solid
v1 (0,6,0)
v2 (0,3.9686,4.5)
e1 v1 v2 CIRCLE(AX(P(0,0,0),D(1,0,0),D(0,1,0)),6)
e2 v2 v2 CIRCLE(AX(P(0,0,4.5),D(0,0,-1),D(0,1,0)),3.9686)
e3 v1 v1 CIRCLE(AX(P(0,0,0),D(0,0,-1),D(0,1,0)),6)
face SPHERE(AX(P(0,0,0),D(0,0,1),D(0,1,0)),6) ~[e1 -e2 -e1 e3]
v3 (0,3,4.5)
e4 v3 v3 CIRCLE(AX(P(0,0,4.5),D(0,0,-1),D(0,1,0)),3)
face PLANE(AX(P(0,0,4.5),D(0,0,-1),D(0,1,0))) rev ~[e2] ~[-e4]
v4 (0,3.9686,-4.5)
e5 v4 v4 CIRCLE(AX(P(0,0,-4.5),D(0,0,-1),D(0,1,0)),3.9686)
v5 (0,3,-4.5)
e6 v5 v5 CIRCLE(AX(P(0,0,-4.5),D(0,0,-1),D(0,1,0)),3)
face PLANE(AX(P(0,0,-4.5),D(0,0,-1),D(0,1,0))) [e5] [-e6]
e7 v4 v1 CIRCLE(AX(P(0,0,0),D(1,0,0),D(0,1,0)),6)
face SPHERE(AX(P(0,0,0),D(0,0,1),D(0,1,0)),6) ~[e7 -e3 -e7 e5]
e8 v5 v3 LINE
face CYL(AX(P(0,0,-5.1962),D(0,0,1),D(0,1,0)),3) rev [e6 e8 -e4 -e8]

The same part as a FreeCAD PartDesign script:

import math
import FreeCAD as App
import Part
import Sketcher

doc = App.newDocument("Part")
body = doc.addObject("PartDesign::Body", "Body")

# Sketch on YZ plane
sketch1 = doc.addObject("Sketcher::SketchObject", "Sketch")
body.addObject(sketch1)
sketch1.AttachmentSupport = (doc.YZ_Plane, [""])
sketch1.MapMode = "FlatFace"
sketch1.addGeometry([
    Part.ArcOfCircle(Part.Circle(App.Vector(0, 0, 0), App.Vector(0, 0, 1), 6), math.radians(-48.590571), math.radians(48.590571)),
    Part.LineSegment(App.Vector(3.9686, 4.5, 0), App.Vector(3, 4.5, 0)),
    Part.LineSegment(App.Vector(3, 4.5, 0), App.Vector(3, -4.5, 0)),
    Part.LineSegment(App.Vector(3, -4.5, 0), App.Vector(3.9686, -4.5, 0)),
], False)
sketch1.addConstraint([
    Sketcher.Constraint("Coincident", 0, 2, 1, 1),
    Sketcher.Constraint("Coincident", 1, 2, 2, 1),
    Sketcher.Constraint("Coincident", 2, 2, 3, 1),
    Sketcher.Constraint("Coincident", 3, 2, 0, 1),
    Sketcher.Constraint("Horizontal", 1),
    Sketcher.Constraint("Vertical", 2),
    Sketcher.Constraint("Horizontal", 3),
    Sketcher.Constraint("Coincident", 0, 3, -1, 1),
    Sketcher.Constraint("Vertical", 0, 2, 3, 2),
    Sketcher.Constraint("Radius", 0, 6.0),
    Sketcher.Constraint("DistanceY", 2, 2, 2, 1, 9.0),
    Sketcher.Constraint("DistanceX", -1, 1, 1, 2, 3.0),
])
revolution = doc.addObject("PartDesign::Revolution", "Revolution")
body.addObject(revolution)
revolution.Profile = sketch1
revolution.ReferenceAxis = (sketch1, ["V_Axis"])
revolution.Angle = 360

doc.recompute()
